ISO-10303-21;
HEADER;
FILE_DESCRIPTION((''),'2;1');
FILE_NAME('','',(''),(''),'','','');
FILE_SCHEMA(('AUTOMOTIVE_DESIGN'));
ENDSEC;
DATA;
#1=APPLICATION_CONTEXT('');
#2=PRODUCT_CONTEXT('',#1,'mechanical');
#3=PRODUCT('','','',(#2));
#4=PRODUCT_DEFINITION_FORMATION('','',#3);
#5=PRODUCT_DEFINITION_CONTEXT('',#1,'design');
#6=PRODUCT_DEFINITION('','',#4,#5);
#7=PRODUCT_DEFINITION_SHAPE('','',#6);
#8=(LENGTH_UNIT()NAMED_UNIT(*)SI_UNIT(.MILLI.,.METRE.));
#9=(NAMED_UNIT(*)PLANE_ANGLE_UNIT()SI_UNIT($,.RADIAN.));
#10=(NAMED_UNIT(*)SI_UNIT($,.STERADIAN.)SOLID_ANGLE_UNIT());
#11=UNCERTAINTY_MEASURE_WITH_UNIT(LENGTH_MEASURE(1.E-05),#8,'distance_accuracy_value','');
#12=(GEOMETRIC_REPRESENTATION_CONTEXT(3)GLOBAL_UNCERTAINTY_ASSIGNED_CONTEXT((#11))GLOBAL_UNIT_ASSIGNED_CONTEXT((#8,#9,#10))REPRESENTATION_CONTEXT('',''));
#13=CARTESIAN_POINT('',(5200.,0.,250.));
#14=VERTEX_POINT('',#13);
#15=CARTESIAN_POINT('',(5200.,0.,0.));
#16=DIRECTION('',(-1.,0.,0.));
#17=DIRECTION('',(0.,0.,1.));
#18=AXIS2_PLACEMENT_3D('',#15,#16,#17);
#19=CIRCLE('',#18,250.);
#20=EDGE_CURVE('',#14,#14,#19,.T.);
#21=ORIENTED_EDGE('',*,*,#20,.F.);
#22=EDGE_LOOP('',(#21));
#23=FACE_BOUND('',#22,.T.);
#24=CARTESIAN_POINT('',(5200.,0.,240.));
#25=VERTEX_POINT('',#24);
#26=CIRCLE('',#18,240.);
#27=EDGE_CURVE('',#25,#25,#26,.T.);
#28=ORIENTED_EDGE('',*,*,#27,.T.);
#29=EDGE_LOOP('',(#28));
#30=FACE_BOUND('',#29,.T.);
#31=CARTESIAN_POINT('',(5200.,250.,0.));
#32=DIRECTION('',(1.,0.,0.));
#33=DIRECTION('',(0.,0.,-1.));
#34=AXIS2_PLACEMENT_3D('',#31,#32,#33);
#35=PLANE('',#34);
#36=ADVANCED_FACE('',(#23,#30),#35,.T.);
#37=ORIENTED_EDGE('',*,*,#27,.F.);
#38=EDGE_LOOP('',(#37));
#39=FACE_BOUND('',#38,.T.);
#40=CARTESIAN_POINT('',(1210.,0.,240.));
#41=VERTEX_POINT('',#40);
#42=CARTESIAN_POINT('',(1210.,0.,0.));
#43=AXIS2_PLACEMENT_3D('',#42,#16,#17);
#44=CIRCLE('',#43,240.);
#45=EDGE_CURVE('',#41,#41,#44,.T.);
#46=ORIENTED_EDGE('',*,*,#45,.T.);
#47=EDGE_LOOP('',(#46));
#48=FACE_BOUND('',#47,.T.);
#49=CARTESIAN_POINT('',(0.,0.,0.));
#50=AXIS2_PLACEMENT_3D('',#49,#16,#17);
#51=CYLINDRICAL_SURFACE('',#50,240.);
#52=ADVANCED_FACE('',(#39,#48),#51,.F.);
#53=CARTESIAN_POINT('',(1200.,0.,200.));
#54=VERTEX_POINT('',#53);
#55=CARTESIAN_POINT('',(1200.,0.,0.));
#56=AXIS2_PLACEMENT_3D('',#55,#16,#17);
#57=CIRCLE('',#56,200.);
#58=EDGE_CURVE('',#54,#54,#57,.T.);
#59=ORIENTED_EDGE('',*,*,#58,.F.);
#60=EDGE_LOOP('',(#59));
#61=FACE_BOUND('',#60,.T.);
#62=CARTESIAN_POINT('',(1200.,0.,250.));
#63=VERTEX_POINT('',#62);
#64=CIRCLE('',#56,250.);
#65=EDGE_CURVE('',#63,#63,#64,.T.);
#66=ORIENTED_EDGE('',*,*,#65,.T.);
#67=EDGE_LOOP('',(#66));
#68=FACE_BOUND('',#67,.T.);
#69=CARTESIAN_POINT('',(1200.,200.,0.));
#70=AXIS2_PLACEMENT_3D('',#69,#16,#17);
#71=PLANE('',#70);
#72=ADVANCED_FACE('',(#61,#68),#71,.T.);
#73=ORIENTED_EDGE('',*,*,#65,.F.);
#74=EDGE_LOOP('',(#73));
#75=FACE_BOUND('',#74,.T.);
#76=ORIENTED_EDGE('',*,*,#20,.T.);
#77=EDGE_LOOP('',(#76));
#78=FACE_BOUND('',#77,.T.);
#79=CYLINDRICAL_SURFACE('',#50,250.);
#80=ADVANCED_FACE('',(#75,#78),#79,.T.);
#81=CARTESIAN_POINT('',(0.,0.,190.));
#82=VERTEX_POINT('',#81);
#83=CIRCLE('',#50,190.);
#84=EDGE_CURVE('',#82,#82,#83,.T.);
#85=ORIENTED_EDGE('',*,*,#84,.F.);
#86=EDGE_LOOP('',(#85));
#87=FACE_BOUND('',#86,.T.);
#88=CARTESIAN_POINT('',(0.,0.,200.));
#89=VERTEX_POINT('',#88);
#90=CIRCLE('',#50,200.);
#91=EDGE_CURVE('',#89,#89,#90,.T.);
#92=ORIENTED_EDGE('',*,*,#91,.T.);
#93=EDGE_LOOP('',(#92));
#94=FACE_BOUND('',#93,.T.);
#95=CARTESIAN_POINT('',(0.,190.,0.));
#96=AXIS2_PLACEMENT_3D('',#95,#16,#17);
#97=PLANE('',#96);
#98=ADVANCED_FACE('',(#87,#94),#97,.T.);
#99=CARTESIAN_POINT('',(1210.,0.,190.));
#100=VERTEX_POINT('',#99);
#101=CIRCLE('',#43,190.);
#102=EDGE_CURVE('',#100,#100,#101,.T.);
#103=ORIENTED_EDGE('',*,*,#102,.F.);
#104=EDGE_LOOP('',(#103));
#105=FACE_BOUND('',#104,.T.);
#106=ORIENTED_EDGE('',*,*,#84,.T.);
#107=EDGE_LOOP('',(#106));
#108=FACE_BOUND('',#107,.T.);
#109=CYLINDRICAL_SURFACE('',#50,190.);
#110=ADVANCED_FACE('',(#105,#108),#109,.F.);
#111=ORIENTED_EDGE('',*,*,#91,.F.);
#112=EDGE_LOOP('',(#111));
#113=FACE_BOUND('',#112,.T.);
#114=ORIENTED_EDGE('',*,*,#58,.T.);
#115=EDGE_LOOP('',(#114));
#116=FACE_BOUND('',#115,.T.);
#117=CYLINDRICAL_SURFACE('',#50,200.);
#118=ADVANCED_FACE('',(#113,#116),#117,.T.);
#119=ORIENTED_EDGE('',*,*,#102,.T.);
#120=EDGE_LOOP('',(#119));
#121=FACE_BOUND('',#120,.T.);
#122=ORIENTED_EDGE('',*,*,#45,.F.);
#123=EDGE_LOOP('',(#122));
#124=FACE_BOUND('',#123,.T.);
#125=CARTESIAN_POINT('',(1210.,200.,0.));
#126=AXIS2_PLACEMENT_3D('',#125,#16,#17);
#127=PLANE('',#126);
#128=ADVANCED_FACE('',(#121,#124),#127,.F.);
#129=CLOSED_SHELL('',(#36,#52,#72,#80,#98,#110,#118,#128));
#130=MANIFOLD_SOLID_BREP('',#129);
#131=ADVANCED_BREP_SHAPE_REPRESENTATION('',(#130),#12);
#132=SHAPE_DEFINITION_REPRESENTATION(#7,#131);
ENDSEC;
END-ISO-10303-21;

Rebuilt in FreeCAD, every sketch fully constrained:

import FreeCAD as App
import Part
import Sketcher
Q = App.Units.Quantity

doc = App.newDocument("Part")
body = doc.addObject("PartDesign::Body", "Body")

sketch1 = body.newObject("Sketcher::SketchObject", "Sketch")
sketch1.AttachmentSupport = (doc.getObject("XY_Plane"), [""])
sketch1.MapMode = "FlatFace"
sketch1.addGeometry(Part.LineSegment(App.Vector(1200, 200, 0), App.Vector(0, 200, 0)), False)
sketch1.addGeometry(Part.LineSegment(App.Vector(0, 200, 0), App.Vector(0, 190, 0)), False)
sketch1.addGeometry(Part.LineSegment(App.Vector(0, 190, 0), App.Vector(1210, 190, 0)), False)
sketch1.addGeometry(Part.LineSegment(App.Vector(1210, 190, 0), App.Vector(1210, 240, 0)), False)
sketch1.addGeometry(Part.LineSegment(App.Vector(1210, 240, 0), App.Vector(5200, 240, 0)), False)
sketch1.addGeometry(Part.LineSegment(App.Vector(5200, 240, 0), App.Vector(5200, 250, 0)), False)
sketch1.addGeometry(Part.LineSegment(App.Vector(5200, 250, 0), App.Vector(1200, 250, 0)), False)
sketch1.addGeometry(Part.LineSegment(App.Vector(1200, 250, 0), App.Vector(1200, 200, 0)), False)
sketch1.addConstraint(Sketcher.Constraint("Coincident", 0, 2, 1, 1))
sketch1.addConstraint(Sketcher.Constraint("Coincident", 1, 2, 2, 1))
sketch1.addConstraint(Sketcher.Constraint("Coincident", 2, 2, 3, 1))
sketch1.addConstraint(Sketcher.Constraint("Coincident", 3, 2, 4, 1))
sketch1.addConstraint(Sketcher.Constraint("Coincident", 4, 2, 5, 1))
sketch1.addConstraint(Sketcher.Constraint("Coincident", 5, 2, 6, 1))
sketch1.addConstraint(Sketcher.Constraint("Coincident", 6, 2, 7, 1))
sketch1.addConstraint(Sketcher.Constraint("Coincident", 7, 2, 0, 1))
sketch1.addConstraint(Sketcher.Constraint("Horizontal", 0))
sketch1.addConstraint(Sketcher.Constraint("Vertical", 1))
sketch1.addConstraint(Sketcher.Constraint("Horizontal", 2))
sketch1.addConstraint(Sketcher.Constraint("Vertical", 3))
sketch1.addConstraint(Sketcher.Constraint("Horizontal", 4))
sketch1.addConstraint(Sketcher.Constraint("Vertical", 5))
sketch1.addConstraint(Sketcher.Constraint("Horizontal", 6))
sketch1.addConstraint(Sketcher.Constraint("Vertical", 7))
sketch1.addConstraint(Sketcher.Constraint("PointOnObject", 0, 2, -2))
sketch1.addConstraint(Sketcher.Constraint("Equal", 1, 5))
sketch1.addConstraint(Sketcher.Constraint("DistanceX", 0, 2, 0, 1, Q("1200 mm")))
sketch1.addConstraint(Sketcher.Constraint("DistanceX", 2, 1, 2, 2, Q("1210 mm")))
sketch1.addConstraint(Sketcher.Constraint("DistanceX", 4, 1, 4, 2, Q("3990 mm")))
sketch1.addConstraint(Sketcher.Constraint("DistanceY", 1, 2, 1, 1, Q("10 mm")))
sketch1.addConstraint(Sketcher.Constraint("DistanceY", 3, 1, 3, 2, Q("50 mm")))
sketch1.addConstraint(Sketcher.Constraint("DistanceY", -1, 1, 0, 2, Q("200 mm")))
revolution = body.newObject("PartDesign::Revolution", "Revolution")
revolution.Profile = sketch1
revolution.ReferenceAxis = (sketch1, ["H_Axis"])
revolution.Angle = 360

doc.recompute()
